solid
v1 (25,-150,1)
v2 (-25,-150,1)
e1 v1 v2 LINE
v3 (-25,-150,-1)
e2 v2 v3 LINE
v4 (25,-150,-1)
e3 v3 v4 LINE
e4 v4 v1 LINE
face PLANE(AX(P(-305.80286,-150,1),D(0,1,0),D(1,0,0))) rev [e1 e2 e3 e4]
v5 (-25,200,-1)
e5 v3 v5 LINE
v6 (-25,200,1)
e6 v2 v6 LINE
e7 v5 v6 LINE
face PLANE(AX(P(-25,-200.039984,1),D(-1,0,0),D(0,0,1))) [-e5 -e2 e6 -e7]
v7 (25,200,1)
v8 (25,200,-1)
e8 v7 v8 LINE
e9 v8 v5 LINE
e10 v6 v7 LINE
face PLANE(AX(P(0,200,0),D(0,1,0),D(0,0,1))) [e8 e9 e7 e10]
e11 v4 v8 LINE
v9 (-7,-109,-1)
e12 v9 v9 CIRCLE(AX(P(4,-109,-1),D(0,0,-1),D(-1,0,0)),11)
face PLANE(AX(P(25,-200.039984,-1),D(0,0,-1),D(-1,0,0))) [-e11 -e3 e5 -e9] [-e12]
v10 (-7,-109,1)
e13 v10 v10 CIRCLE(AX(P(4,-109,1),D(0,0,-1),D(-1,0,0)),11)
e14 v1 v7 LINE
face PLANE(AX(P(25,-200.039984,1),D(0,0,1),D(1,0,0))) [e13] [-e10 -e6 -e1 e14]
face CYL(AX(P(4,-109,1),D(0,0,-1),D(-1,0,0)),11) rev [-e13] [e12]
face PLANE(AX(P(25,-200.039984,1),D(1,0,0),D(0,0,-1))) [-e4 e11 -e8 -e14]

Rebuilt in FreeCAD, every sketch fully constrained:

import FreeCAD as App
import Part
import Sketcher

V = App.Vector

doc = App.newDocument("Part")
body = doc.addObject("PartDesign::Body", "Body")

# Sketch on XZ plane
sketch1 = body.newObject("Sketcher::SketchObject", "Sketch")
sketch1.AttachmentSupport = (doc.getObject("XZ_Plane"), [""])
sketch1.MapMode = "FlatFace"
sketch1.addGeometry([
    Part.LineSegment(V(-25, -1, 0), V(-25, 1, 0)),
    Part.LineSegment(V(-25, 1, 0), V(25, 1, 0)),
    Part.LineSegment(V(25, 1, 0), V(25, -1, 0)),
    Part.LineSegment(V(25, -1, 0), V(-25, -1, 0)),
], False)
sketch1.addConstraint([
    Sketcher.Constraint("Coincident", 0, 2, 1, 1),
    Sketcher.Constraint("Coincident", 1, 2, 2, 1),
    Sketcher.Constraint("Coincident", 2, 2, 3, 1),
    Sketcher.Constraint("Coincident", 3, 2, 0, 1),
    Sketcher.Constraint("Vertical", 0),
    Sketcher.Constraint("Horizontal", 1),
    Sketcher.Constraint("Vertical", 2),
    Sketcher.Constraint("Horizontal", 3),
    Sketcher.Constraint("Symmetric", 0, 2, 2, 2, -1, 1),
    Sketcher.Constraint("DistanceX", 1, 1, 1, 2, 50.0),
    Sketcher.Constraint("DistanceY", 0, 1, 0, 2, 2.0),
])
pad1 = body.newObject("PartDesign::Pad", "Pad")
pad1.Profile = sketch1
pad1.Type = "TwoLengths"
pad1.Length = 200
pad1.Length2 = 150
pad1.Reversed = True

# Sketch on XY plane
sketch2 = body.newObject("Sketcher::SketchObject", "Sketch001")
sketch2.AttachmentSupport = (doc.getObject("XY_Plane"), [""])
sketch2.MapMode = "FlatFace"
sketch2.AttachmentOffset = App.Placement(V(0, 0, -1), App.Rotation())
sketch2.addGeometry(Part.Circle(V(4, -109, 0), V(0, 0, 1), 11), False)
sketch2.addConstraint([
    Sketcher.Constraint("Diameter", 0, 22.0),
    Sketcher.Constraint("DistanceX", -1, 1, 0, 3, 4.0),
    Sketcher.Constraint("DistanceY", 0, 3, -1, 1, 109.0),
])
pocket1 = body.newObject("PartDesign::Pocket", "Pocket")
pocket1.Profile = sketch2
pocket1.Type = "ThroughAll"
pocket1.Reversed = True

doc.recompute()
